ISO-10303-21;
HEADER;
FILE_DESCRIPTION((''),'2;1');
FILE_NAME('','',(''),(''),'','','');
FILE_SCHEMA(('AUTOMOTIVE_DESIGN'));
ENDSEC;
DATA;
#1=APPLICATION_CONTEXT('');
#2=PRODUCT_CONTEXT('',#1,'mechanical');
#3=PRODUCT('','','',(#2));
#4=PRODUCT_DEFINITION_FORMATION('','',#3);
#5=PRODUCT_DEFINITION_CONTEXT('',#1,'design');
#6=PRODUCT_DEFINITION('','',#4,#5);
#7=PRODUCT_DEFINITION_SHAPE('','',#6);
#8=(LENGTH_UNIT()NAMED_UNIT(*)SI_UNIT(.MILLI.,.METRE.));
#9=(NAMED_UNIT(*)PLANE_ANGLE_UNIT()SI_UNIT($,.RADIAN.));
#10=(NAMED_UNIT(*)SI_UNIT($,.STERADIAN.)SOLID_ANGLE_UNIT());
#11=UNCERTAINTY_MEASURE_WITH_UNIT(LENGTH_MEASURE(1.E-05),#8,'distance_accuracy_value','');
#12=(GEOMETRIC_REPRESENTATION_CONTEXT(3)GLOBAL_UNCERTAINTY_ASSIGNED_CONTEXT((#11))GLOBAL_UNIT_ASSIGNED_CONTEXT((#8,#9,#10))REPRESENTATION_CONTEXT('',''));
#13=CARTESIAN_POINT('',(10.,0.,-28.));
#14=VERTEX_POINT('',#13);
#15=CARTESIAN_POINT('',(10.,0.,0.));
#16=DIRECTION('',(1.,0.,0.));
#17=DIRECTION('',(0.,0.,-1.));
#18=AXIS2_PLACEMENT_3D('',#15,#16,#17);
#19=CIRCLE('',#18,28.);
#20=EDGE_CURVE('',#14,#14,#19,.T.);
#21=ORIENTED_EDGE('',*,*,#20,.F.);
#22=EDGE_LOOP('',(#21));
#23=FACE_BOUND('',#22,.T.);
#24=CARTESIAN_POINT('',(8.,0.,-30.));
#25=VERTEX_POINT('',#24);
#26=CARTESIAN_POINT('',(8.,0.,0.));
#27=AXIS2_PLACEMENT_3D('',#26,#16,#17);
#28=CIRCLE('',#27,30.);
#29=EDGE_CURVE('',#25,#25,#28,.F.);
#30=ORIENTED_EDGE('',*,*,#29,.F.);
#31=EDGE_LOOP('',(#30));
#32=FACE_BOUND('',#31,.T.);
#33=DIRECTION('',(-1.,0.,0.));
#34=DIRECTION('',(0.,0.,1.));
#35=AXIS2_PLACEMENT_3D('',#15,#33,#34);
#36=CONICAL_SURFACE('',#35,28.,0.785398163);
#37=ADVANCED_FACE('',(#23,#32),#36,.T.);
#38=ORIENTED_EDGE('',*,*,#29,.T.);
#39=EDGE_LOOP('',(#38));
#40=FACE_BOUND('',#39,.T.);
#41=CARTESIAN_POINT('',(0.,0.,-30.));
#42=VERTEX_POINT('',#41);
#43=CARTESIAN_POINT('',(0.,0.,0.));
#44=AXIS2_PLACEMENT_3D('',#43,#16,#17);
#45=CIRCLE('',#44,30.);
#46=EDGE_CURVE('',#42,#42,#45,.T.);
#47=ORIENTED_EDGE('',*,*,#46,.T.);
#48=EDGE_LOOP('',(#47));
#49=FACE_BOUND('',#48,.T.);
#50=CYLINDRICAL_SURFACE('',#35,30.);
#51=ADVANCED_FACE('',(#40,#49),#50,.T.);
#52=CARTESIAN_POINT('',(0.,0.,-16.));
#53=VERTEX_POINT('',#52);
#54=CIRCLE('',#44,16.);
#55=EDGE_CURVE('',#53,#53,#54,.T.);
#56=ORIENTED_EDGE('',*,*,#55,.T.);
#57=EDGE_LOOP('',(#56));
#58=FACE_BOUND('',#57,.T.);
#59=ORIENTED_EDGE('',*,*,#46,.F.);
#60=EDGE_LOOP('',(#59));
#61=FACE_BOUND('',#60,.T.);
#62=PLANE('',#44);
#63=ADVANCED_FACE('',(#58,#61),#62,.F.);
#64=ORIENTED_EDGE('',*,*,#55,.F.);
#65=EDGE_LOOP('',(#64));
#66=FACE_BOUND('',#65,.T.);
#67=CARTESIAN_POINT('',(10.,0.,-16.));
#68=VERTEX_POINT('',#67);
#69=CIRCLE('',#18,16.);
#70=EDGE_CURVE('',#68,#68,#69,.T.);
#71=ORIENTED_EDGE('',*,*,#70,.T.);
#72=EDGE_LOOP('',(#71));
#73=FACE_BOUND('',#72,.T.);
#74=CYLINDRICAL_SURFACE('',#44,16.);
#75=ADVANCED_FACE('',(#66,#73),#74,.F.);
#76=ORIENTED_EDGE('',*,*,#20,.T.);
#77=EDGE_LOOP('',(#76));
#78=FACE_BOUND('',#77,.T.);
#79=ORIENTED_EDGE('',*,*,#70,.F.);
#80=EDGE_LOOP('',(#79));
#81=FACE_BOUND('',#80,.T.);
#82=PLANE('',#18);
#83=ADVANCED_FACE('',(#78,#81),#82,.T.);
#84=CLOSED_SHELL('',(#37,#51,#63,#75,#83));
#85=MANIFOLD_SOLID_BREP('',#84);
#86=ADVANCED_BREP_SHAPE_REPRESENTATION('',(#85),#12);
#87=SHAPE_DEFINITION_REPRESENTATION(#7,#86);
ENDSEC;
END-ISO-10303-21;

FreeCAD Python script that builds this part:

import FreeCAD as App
import Part
import Sketcher

V = App.Vector
Q = App.Units.Quantity


def edges_at(feature, points):
    """Names of the edges that pass closest to the given points."""
    edges = feature.Shape.Edges
    near = lambda p: min(range(len(edges)), key=lambda i: edges[i].distToShape(Part.Vertex(*p))[0])
    return sorted({f"Edge{near(p) + 1}" for p in points})

doc = App.newDocument("Part")
body = doc.addObject("PartDesign::Body", "Body")

# Sketch on YZ plane
sketch1 = body.newObject("Sketcher::SketchObject", "Sketch")
sketch1.AttachmentSupport = (doc.getObject("YZ_Plane"), [""])
sketch1.MapMode = "FlatFace"
sketch1.addGeometry(Part.Circle(V(0, 0, 0), V(0, 0, 1), 30), False)
sketch1.addConstraint([
    Sketcher.Constraint("Coincident", 0, 3, -1, 1),
    Sketcher.Constraint("Diameter", 0, Q("60 mm")),
])
pad1 = body.newObject("PartDesign::Pad", "Pad")
pad1.Profile = sketch1
pad1.Length = 10
doc.recompute()

chamfer = body.newObject("PartDesign::Chamfer", "Chamfer")
chamfer.Base = (pad1, edges_at(pad1, [(10, 0, 30)]))
chamfer.Size = 2

# Sketch on YZ plane
sketch2 = body.newObject("Sketcher::SketchObject", "Sketch001")
sketch2.AttachmentSupport = (doc.getObject("YZ_Plane"), [""])
sketch2.MapMode = "FlatFace"
sketch2.AttachmentOffset = App.Placement(V(0, 0, 10), App.Rotation())
sketch2.addGeometry(Part.Circle(V(0, 0, 0), V(0, 0, 1), 16), False)
sketch2.addConstraint([
    Sketcher.Constraint("Coincident", 0, 3, -1, 1),
    Sketcher.Constraint("Diameter", 0, Q("32 mm")),
])
pocket1 = body.newObject("PartDesign::Pocket", "Pocket")
pocket1.Profile = sketch2
pocket1.Length = 10

doc.recompute()
